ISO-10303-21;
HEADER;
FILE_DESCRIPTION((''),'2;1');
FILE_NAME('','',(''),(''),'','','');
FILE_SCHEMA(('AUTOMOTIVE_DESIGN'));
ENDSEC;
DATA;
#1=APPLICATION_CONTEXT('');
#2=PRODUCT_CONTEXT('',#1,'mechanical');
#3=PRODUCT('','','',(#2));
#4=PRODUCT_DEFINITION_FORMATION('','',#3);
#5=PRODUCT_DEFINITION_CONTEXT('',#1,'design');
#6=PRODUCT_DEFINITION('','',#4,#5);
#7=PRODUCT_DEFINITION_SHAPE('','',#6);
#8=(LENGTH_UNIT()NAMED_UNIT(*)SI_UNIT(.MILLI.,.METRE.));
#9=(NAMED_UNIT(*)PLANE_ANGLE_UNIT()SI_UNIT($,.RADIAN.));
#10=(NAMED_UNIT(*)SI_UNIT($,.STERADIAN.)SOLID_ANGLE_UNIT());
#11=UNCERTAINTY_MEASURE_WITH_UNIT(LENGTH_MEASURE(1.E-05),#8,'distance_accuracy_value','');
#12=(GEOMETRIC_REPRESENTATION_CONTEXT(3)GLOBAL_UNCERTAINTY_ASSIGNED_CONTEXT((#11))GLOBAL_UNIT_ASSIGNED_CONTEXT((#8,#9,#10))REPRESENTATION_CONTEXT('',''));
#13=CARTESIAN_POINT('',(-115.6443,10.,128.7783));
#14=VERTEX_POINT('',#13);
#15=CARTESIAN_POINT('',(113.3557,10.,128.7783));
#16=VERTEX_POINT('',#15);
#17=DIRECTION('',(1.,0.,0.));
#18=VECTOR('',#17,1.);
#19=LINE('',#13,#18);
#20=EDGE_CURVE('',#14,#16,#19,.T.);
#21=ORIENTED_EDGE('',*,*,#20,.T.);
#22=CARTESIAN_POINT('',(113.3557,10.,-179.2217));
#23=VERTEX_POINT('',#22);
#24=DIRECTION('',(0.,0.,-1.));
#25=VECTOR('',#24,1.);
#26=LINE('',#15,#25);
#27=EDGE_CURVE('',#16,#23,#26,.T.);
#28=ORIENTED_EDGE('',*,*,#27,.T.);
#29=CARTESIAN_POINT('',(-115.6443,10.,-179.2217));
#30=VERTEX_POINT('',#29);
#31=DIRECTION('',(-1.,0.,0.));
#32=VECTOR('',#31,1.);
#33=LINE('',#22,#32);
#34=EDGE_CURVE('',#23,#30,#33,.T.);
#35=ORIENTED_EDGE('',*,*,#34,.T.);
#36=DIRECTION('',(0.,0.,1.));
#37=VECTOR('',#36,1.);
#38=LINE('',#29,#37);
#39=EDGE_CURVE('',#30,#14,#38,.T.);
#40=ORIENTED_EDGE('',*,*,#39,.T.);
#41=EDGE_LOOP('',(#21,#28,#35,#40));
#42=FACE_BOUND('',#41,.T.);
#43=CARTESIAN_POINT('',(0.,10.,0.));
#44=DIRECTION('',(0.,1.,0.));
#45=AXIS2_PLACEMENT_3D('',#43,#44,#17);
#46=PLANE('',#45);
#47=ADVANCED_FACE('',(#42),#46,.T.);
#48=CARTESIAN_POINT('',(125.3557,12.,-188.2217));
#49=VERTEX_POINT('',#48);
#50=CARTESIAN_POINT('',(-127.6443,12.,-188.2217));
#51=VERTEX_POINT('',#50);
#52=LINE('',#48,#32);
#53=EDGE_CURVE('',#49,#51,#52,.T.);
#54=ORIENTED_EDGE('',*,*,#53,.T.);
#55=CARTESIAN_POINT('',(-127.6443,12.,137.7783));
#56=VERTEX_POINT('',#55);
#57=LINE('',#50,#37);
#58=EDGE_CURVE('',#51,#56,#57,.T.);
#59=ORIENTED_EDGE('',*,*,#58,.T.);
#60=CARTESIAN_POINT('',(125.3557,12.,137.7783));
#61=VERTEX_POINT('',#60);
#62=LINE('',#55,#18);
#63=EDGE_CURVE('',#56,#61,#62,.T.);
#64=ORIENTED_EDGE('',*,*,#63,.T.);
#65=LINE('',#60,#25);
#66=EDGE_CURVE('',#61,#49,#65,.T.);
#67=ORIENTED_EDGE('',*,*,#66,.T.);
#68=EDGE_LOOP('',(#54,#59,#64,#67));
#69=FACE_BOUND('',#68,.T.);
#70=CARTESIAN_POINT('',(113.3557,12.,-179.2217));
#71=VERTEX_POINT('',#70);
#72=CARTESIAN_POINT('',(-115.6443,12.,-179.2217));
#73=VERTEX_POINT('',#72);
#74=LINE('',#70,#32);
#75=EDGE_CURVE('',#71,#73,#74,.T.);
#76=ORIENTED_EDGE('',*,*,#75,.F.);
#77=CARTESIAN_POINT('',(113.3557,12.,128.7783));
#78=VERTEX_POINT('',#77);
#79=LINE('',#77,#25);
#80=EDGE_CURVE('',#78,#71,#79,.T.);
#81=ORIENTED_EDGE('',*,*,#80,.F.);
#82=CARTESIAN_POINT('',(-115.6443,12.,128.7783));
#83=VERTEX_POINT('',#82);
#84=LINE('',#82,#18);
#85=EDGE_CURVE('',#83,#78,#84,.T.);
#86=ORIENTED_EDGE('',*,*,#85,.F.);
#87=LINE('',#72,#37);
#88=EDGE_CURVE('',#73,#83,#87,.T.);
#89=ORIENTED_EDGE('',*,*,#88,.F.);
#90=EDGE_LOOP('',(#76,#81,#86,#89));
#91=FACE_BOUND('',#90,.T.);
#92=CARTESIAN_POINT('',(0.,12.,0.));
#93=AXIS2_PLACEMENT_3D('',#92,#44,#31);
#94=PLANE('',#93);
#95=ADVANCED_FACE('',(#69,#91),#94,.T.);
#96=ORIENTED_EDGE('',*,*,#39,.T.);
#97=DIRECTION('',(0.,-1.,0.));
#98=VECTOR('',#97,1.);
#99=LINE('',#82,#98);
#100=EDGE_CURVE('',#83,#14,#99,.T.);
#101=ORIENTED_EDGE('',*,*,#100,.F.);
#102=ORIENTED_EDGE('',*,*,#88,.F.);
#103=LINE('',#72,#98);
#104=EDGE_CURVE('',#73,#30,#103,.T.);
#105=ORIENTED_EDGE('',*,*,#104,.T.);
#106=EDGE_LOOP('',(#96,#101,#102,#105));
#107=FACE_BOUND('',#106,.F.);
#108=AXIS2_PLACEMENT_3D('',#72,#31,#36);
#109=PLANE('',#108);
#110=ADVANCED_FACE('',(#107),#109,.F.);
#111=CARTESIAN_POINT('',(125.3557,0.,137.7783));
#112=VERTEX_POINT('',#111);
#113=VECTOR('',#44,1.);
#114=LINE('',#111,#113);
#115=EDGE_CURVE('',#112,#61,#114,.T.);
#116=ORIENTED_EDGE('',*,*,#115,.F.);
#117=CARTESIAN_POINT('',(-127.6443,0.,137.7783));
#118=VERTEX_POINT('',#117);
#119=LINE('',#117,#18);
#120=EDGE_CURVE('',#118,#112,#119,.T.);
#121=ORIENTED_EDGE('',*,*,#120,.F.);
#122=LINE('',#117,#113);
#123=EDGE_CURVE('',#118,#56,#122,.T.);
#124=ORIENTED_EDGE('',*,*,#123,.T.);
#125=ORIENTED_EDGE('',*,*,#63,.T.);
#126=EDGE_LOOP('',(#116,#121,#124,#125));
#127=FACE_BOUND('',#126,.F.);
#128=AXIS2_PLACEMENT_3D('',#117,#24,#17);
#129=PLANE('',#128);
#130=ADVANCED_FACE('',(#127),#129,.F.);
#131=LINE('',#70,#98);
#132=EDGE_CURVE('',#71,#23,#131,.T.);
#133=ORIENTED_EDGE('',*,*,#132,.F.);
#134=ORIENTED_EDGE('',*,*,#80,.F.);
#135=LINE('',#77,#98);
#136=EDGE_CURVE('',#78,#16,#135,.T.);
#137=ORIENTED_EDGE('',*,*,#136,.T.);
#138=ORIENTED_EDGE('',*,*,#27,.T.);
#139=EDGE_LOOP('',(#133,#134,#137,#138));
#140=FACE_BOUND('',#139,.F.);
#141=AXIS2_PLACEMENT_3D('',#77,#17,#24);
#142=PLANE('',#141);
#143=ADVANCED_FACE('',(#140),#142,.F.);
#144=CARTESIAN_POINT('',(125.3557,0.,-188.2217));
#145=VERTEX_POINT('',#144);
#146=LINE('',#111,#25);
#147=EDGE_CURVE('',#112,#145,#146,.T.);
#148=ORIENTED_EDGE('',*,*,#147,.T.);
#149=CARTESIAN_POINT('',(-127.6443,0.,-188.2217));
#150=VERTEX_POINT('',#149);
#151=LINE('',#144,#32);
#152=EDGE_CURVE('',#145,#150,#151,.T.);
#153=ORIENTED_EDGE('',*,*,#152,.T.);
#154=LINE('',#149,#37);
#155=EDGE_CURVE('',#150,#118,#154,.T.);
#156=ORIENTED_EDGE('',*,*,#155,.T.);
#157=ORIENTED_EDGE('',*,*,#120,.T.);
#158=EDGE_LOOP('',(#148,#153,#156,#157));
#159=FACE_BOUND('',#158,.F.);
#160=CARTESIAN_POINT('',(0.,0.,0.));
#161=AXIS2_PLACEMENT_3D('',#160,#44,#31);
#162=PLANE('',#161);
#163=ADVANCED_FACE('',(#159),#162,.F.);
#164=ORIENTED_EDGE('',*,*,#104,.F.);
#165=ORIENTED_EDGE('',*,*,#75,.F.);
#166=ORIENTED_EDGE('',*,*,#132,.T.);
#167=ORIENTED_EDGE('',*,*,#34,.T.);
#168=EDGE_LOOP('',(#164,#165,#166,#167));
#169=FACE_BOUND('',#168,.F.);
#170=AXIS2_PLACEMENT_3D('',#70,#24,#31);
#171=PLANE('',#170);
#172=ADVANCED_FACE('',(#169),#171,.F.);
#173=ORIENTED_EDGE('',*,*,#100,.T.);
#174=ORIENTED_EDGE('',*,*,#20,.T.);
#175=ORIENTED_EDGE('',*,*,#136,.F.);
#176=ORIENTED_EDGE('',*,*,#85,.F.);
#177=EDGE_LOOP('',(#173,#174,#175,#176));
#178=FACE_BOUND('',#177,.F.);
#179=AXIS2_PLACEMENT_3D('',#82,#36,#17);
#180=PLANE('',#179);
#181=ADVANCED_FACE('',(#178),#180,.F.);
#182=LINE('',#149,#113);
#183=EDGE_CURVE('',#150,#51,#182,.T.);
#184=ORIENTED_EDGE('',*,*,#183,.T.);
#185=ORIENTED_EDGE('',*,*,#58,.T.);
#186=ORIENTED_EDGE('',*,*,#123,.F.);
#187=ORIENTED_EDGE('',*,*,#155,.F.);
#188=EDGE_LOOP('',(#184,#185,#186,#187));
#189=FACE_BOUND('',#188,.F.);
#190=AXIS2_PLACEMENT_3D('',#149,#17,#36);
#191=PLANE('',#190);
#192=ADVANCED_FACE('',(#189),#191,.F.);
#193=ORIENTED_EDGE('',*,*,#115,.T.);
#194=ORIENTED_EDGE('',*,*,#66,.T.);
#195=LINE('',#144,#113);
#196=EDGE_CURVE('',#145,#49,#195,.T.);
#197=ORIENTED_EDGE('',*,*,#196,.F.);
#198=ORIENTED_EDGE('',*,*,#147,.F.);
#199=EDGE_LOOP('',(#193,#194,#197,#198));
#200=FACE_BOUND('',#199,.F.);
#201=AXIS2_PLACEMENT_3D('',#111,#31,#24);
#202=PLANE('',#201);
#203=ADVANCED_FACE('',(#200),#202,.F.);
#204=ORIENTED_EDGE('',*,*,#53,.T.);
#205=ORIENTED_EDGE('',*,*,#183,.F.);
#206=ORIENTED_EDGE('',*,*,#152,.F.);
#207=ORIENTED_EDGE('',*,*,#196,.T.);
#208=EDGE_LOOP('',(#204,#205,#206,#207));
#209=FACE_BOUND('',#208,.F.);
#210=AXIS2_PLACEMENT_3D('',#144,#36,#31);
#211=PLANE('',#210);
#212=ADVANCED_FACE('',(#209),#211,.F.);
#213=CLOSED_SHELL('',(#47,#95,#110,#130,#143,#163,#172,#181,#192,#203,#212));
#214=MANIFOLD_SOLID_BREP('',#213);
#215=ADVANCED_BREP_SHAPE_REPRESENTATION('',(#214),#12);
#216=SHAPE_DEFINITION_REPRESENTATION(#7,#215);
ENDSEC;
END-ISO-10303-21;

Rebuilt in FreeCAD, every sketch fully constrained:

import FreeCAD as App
import Part
import Sketcher
from FreeCAD import Vector


def add_polygon(sketch, points):
    """Adds a closed chain of lines whose ends are joined by coincident constraints."""
    first, n = sketch.GeometryCount, len(points)
    for a, b in zip(points, points[1:] + points[:1]):
        sketch.addGeometry(Part.LineSegment(App.Vector(*a, 0), App.Vector(*b, 0)), False)
    for i in range(n):
        sketch.addConstraint(Sketcher.Constraint("Coincident", first + i, 2, first + (i + 1) % n, 1))

doc = App.newDocument("Part")
body = doc.addObject("PartDesign::Body", "Body")

sketch1 = doc.addObject("Sketcher::SketchObject", "Sketch")
body.addObject(sketch1)
sketch1.AttachmentSupport = (doc.XZ_Plane, [""])
sketch1.MapMode = "FlatFace"
add_polygon(sketch1, [(-128, -188), (-128, 138), (125, 138), (125, -188)])
sketch1.addConstraint([
    Sketcher.Constraint("Vertical", 0),
    Sketcher.Constraint("Horizontal", 1),
    Sketcher.Constraint("Vertical", 2),
    Sketcher.Constraint("Horizontal", 3),
    Sketcher.Constraint("DistanceX", 1, 1, 1, 2, 253.0),
    Sketcher.Constraint("DistanceY", 0, 1, 0, 2, 326.0),
    Sketcher.Constraint("DistanceX", 0, 2, -1, 1, 127.6443),
    Sketcher.Constraint("DistanceY", -1, 1, 0, 2, 137.7783),
])
pad1 = doc.addObject("PartDesign::Pad", "Pad")
body.addObject(pad1)
pad1.Profile = sketch1
pad1.Length = 12
pad1.Reversed = True

sketch2 = doc.addObject("Sketcher::SketchObject", "Sketch001")
body.addObject(sketch2)
sketch2.AttachmentSupport = (doc.XZ_Plane, [""])
sketch2.MapMode = "FlatFace"
sketch2.AttachmentOffset = App.Placement(Vector(0, 0, -12), App.Rotation())
add_polygon(sketch2, [(-116, -179), (-116, 129), (113, 129), (113, -179)])
sketch2.addConstraint([
    Sketcher.Constraint("Vertical", 0),
    Sketcher.Constraint("Horizontal", 1),
    Sketcher.Constraint("Vertical", 2),
    Sketcher.Constraint("Horizontal", 3),
    Sketcher.Constraint("DistanceX", 1, 1, 1, 2, 229.0),
    Sketcher.Constraint("DistanceY", 0, 1, 0, 2, 308.0),
    Sketcher.Constraint("DistanceX", 0, 2, -1, 1, 115.6443),
    Sketcher.Constraint("DistanceY", -1, 1, 0, 2, 128.7783),
])
pocket1 = doc.addObject("PartDesign::Pocket", "Pocket")
body.addObject(pocket1)
pocket1.Profile = sketch2
pocket1.Length = 2
pocket1.Reversed = True

doc.recompute()
